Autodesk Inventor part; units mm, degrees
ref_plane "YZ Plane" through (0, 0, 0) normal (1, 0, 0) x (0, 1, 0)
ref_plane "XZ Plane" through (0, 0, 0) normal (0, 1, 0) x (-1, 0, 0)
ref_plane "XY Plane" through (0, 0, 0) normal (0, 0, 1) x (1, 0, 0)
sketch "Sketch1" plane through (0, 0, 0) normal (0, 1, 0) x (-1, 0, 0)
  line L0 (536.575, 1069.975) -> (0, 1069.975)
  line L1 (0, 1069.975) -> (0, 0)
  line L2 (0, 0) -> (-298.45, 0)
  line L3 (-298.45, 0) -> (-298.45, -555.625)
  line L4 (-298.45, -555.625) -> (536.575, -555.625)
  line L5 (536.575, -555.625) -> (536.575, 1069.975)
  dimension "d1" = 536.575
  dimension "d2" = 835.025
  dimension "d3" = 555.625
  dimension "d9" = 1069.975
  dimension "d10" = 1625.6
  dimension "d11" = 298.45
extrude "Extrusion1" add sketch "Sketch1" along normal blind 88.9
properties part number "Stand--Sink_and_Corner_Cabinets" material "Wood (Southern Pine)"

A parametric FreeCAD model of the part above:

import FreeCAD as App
import Part
import Sketcher

V = App.Vector
Q = App.Units.Quantity

doc = App.newDocument("Part")
body = doc.addObject("PartDesign::Body", "Body")

# Sketch on XZ plane
sketch1 = body.newObject("Sketcher::SketchObject", "Sketch")
sketch1.AttachmentSupport = (doc.getObject("XZ_Plane"), [""])
sketch1.MapMode = "FlatFace"
sketch1.addGeometry([
    Part.LineSegment(V(-537, -556, 0), V(-537, 1070, 0)),  # 0
    Part.LineSegment(V(-537, 1070, 0), V(0, 1070, 0)),  # 1
    Part.LineSegment(V(0, 1070, 0), V(0, 0, 0)),  # 2
    Part.LineSegment(V(0, 0, 0), V(298, 0, 0)),  # 3
    Part.LineSegment(V(298, 0, 0), V(298, -556, 0)),  # 4
    Part.LineSegment(V(298, -556, 0), V(-537, -556, 0)),  # 5
], False)
sketch1.addConstraint([
    Sketcher.Constraint("Coincident", 0, 2, 1, 1),
    Sketcher.Constraint("Coincident", 1, 2, 2, 1),
    Sketcher.Constraint("Coincident", 2, 2, 3, 1),
    Sketcher.Constraint("Coincident", 3, 2, 4, 1),
    Sketcher.Constraint("Coincident", 4, 2, 5, 1),
    Sketcher.Constraint("Coincident", 5, 2, 0, 1),
    Sketcher.Constraint("Vertical", 0),
    Sketcher.Constraint("Horizontal", 1),
    Sketcher.Constraint("Vertical", 2),
    Sketcher.Constraint("Horizontal", 3),
    Sketcher.Constraint("Vertical", 4),
    Sketcher.Constraint("Horizontal", 5),
    Sketcher.Constraint("Coincident", 2, 2, -1, 1),
    Sketcher.Constraint("DistanceY", 0, 1, 0, 2, Q("64 in")),
    Sketcher.Constraint("DistanceX", 3, 1, 3, 2, Q("11.75 in")),
    Sketcher.Constraint("DistanceX", 1, 1, 1, 2, Q("21.125 in")),
    Sketcher.Constraint("DistanceY", 2, 2, 2, 1, Q("42.125 in")),
])
pad1 = body.newObject("PartDesign::Pad", "Pad")
pad1.Profile = sketch1
pad1.Length = Q("3.5 in")
pad1.Reversed = True

doc.recompute()
